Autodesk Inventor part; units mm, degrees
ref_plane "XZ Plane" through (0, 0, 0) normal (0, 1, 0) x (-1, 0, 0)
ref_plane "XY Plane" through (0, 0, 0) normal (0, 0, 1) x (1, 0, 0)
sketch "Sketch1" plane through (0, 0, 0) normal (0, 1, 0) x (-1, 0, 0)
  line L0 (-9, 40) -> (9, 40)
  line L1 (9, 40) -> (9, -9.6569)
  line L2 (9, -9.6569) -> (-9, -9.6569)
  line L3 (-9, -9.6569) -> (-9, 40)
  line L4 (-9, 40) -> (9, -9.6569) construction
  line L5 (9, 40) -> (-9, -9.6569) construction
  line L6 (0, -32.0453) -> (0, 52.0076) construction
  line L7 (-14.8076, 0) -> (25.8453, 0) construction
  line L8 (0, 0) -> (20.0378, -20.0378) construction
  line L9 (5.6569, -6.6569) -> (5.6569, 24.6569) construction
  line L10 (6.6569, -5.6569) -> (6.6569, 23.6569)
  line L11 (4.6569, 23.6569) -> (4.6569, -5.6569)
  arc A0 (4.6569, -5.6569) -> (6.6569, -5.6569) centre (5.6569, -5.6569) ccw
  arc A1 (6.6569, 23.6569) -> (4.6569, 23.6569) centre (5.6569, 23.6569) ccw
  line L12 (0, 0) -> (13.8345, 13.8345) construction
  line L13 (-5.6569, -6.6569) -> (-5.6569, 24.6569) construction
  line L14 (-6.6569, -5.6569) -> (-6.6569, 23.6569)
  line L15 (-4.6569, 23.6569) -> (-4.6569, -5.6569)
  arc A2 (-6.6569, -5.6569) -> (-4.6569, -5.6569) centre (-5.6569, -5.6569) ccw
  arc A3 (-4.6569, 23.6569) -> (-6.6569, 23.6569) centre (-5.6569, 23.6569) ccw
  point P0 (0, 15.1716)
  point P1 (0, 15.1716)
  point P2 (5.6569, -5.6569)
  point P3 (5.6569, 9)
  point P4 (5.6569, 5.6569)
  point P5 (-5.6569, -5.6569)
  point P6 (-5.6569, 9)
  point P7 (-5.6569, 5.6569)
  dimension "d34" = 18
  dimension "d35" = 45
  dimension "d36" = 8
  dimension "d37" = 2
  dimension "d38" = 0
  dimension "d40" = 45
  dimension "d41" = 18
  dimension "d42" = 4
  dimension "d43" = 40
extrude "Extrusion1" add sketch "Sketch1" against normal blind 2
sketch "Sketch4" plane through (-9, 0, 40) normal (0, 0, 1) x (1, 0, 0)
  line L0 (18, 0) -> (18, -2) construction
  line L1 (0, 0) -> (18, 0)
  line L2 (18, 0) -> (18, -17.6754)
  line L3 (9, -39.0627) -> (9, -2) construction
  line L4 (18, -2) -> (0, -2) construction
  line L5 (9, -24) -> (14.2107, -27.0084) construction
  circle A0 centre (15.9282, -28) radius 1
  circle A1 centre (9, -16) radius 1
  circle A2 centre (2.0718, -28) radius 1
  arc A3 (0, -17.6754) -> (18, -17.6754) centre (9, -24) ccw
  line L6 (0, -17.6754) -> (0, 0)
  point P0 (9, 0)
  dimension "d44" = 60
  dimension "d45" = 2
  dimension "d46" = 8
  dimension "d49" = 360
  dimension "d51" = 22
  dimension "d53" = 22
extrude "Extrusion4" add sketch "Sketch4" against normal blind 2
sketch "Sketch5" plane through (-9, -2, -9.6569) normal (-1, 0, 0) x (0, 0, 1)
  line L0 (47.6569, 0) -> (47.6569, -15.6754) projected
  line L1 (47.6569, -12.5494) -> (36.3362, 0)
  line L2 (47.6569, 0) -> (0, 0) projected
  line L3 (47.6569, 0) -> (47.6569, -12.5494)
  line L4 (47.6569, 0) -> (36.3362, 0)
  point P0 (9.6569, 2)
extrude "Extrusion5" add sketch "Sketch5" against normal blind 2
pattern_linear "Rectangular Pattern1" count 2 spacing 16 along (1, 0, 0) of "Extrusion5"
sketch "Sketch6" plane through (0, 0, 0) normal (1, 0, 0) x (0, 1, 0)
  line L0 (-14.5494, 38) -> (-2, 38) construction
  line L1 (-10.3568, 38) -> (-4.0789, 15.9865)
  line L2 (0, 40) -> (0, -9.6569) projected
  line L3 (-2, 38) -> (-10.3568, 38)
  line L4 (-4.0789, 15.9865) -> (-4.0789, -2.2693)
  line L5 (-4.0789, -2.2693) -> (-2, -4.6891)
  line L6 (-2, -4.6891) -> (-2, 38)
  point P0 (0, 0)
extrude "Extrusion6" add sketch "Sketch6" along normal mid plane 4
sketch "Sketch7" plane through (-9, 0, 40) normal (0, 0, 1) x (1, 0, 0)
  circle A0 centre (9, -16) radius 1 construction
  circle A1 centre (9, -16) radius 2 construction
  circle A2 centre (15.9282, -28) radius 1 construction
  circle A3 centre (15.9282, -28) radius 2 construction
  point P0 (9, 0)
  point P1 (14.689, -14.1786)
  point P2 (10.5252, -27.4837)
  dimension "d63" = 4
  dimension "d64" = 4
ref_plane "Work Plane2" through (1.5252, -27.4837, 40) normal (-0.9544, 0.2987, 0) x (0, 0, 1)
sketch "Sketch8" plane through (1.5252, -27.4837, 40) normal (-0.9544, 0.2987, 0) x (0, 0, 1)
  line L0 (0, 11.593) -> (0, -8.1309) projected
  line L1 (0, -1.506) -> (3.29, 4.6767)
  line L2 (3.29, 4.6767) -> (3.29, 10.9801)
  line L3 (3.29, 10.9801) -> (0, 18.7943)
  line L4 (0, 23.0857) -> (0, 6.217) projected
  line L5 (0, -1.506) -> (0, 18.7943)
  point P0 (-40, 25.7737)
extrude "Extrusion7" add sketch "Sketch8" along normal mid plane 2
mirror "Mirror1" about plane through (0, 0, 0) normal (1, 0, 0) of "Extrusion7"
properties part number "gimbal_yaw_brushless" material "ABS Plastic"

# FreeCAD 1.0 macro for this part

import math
import FreeCAD as App
import Part
import Sketcher
Q = App.Units.Quantity


def add_polygon(sketch, points):
    """Adds a closed chain of lines whose ends are joined by coincident constraints."""
    first, n = sketch.GeometryCount, len(points)
    for a, b in zip(points, points[1:] + points[:1]):
        sketch.addGeometry(Part.LineSegment(App.Vector(*a, 0), App.Vector(*b, 0)), False)
    for i in range(n):
        sketch.addConstraint(Sketcher.Constraint("Coincident", first + i, 2, first + (i + 1) % n, 1))

doc = App.newDocument("Part")
body = doc.addObject("PartDesign::Body", "Body")

# Sketch on XZ plane
sketch1 = body.newObject("Sketcher::SketchObject", "Sketch")
sketch1.AttachmentSupport = (doc.getObject("XZ_Plane"), [""])
sketch1.MapMode = "FlatFace"
add_polygon(sketch1, [(-9, 40), (9, 40), (9, -9.7), (-9, -9.7)])  # lines 0-3
sketch1.addGeometry(Part.ArcOfCircle(Part.Circle(App.Vector(5.7, -5.7, 0), App.Vector(0, 0, 1), 1), math.radians(180), math.radians(360)), False)  # 4
sketch1.addGeometry(Part.LineSegment(App.Vector(6.7, -5.7, 0), App.Vector(6.7, 23.7, 0)), False)  # 5
sketch1.addGeometry(Part.ArcOfCircle(Part.Circle(App.Vector(5.7, 23.7, 0), App.Vector(0, 0, 1), 1), math.radians(0), math.radians(180)), False)  # 6
sketch1.addGeometry(Part.LineSegment(App.Vector(4.7, 23.7, 0), App.Vector(4.7, -5.7, 0)), False)  # 7
sketch1.addGeometry(Part.LineSegment(App.Vector(-6.7, 23.7, 0), App.Vector(-6.7, -5.7, 0)), False)  # 8
sketch1.addGeometry(Part.ArcOfCircle(Part.Circle(App.Vector(-5.7, -5.7, 0), App.Vector(0, 0, 1), 1), math.radians(180), math.radians(360)), False)  # 9
sketch1.addGeometry(Part.LineSegment(App.Vector(-4.7, -5.7, 0), App.Vector(-4.7, 23.7, 0)), False)  # 10
sketch1.addGeometry(Part.ArcOfCircle(Part.Circle(App.Vector(-5.7, 23.7, 0), App.Vector(0, 0, 1), 1), math.radians(0), math.radians(180)), False)  # 11
sketch1.addConstraint([
    Sketcher.Constraint("Tangent", 4, 2, 5, 1),
    Sketcher.Constraint("Tangent", 5, 2, 6, 1),
    Sketcher.Constraint("Tangent", 6, 2, 7, 1),
    Sketcher.Constraint("Tangent", 7, 2, 4, 1),
    Sketcher.Constraint("Tangent", 8, 2, 9, 1),
    Sketcher.Constraint("Tangent", 9, 2, 10, 1),
    Sketcher.Constraint("Tangent", 10, 2, 11, 1),
    Sketcher.Constraint("Tangent", 11, 2, 8, 1),
    Sketcher.Constraint("Horizontal", 0),
    Sketcher.Constraint("Vertical", 1),
    Sketcher.Constraint("Horizontal", 2),
    Sketcher.Constraint("Vertical", 3),
    Sketcher.Constraint("Vertical", 5),
    Sketcher.Constraint("Vertical", 7),
    Sketcher.Constraint("Vertical", 8),
    Sketcher.Constraint("Vertical", 10),
    Sketcher.Constraint("Equal", 6, 9),
    Sketcher.Constraint("Symmetric", 4, 3, 9, 3, -2),
    Sketcher.Constraint("Horizontal", 6, 3, 11, 3),
    Sketcher.Constraint("Radius", 4, Q("1 mm")),
    Sketcher.Constraint("DistanceX", 0, 1, 0, 2, Q("18 mm")),
    Sketcher.Constraint("DistanceY", -1, 1, 0, 2, Q("40 mm")),
    Sketcher.Constraint("DistanceY", 1, 2, 4, 3, Q("4 mm")),
    Sketcher.Constraint("DistanceX", -1, 1, 0, 2, Q("9 mm")),
    Sketcher.Constraint("DistanceY", 1, 2, 1, 1, Q("49.657 mm")),
    Sketcher.Constraint("DistanceY", 5, 1, 5, 2, Q("29.3138 mm")),
    Sketcher.Constraint("DistanceX", -1, 1, 4, 3, Q("5.657 mm")),
])
pad1 = body.newObject("PartDesign::Pad", "Pad")
pad1.Profile = sketch1
pad1.Length = 2

# Sketch on XY plane
sketch2 = body.newObject("Sketcher::SketchObject", "Sketch001")
sketch2.AttachmentSupport = (doc.getObject("XY_Plane"), [""])
sketch2.MapMode = "FlatFace"
sketch2.AttachmentOffset = App.Placement(App.Vector(0, 0, 40), App.Rotation())
sketch2.addGeometry([
    Part.LineSegment(App.Vector(9, 0, 0), App.Vector(-9, 0, 0)),  # 0
    Part.LineSegment(App.Vector(-9, 0, 0), App.Vector(-9, -17.7, 0)),  # 1
    Part.ArcOfCircle(Part.Circle(App.Vector(0, -24, 0), App.Vector(0, 0, 1), 11), math.radians(145), math.radians(395)),  # 2
    Part.LineSegment(App.Vector(9, -17.7, 0), App.Vector(9, 0, 0)),  # 3
    Part.Circle(App.Vector(-6.9, -28, 0), App.Vector(0, 0, 1), 1),  # 4
    Part.Circle(App.Vector(6.9, -28, 0), App.Vector(0, 0, 1), 1),  # 5
    Part.Circle(App.Vector(0, -16, 0), App.Vector(0, 0, 1), 1),  # 6
], False)
sketch2.addConstraint([
    Sketcher.Constraint("Coincident", 0, 2, 1, 1),
    Sketcher.Constraint("Coincident", 1, 2, 2, 1),
    Sketcher.Constraint("Coincident", 2, 2, 3, 1),
    Sketcher.Constraint("Coincident", 3, 2, 0, 1),
    Sketcher.Constraint("Horizontal", 0),
    Sketcher.Constraint("Vertical", 1),
    Sketcher.Constraint("Vertical", 3),
    Sketcher.Constraint("Equal", 4, 5),
    Sketcher.Constraint("Equal", 5, 6),
    Sketcher.Constraint("Symmetric", 0, 2, 3, 2, -1, 1),
    Sketcher.Constraint("Symmetric", 4, 3, 5, 3, -2),
    Sketcher.Constraint("PointOnObject", 2, 3, -2),
    Sketcher.Constraint("PointOnObject", 6, 3, -2),
    Sketcher.Constraint("Diameter", 4, Q("2 mm")),
    Sketcher.Constraint("Radius", 2, Q("11 mm")),
    Sketcher.Constraint("DistanceY", 2, 3, 6, 3, Q("8 mm")),
    Sketcher.Constraint("DistanceX", 0, 2, 0, 1, Q("18 mm")),
    Sketcher.Constraint("DistanceY", 2, 3, -1, 1, Q("24 mm")),
    Sketcher.Constraint("DistanceY", 4, 3, -1, 1, Q("28 mm")),
    Sketcher.Constraint("DistanceX", 4, 3, -1, 1, Q("6.9282 mm")),
])
pad2 = body.newObject("PartDesign::Pad", "Pad001")
pad2.Profile = sketch2
pad2.Length = 2
pad2.Reversed = True

# Sketch on YZ plane
sketch3 = body.newObject("Sketcher::SketchObject", "Sketch002")
sketch3.AttachmentSupport = (doc.getObject("YZ_Plane"), [""])
sketch3.MapMode = "FlatFace"
sketch3.AttachmentOffset = App.Placement(App.Vector(0, 0, -9), App.Rotation())
add_polygon(sketch3, [(-15, 38), (-2, 38), (-2, 27)])  # lines 0-2
sketch3.addConstraint([
    Sketcher.Constraint("Horizontal", 0),
    Sketcher.Constraint("Vertical", 1),
    Sketcher.Constraint("DistanceX", 0, 2, -1, 1, Q("2 mm")),
    Sketcher.Constraint("DistanceY", -1, 1, 0, 2, Q("38 mm")),
    Sketcher.Constraint("Distance", 2, Q("16.901 mm")),
    Sketcher.Constraint("DistanceX", 0, 1, 0, 2, Q("12.5494 mm")),
])
pad3 = body.newObject("PartDesign::Pad", "Pad002")
pad3.Profile = sketch3
pad3.Length = 2
doc.recompute()

linearpattern = body.newObject("PartDesign::LinearPattern", "LinearPattern")
linearpattern.Originals = [pad3]
linearpattern.Direction = (doc.getObject("X_Axis"), [""])
linearpattern.Mode = "offset"
linearpattern.Offset = 16
linearpattern.Occurrences = 2
body.Tip = linearpattern

# Sketch on YZ plane
sketch4 = body.newObject("Sketcher::SketchObject", "Sketch003")
sketch4.AttachmentSupport = (doc.getObject("YZ_Plane"), [""])
sketch4.MapMode = "FlatFace"
add_polygon(sketch4, [(-2, 38), (-10.4, 38), (-4.1, 16), (-4.1, -2.3), (-2, -4.7)])  # lines 0-4
sketch4.addConstraint([
    Sketcher.Constraint("Horizontal", 0),
    Sketcher.Constraint("Vertical", 2),
    Sketcher.Constraint("Vertical", 4),
    Sketcher.Constraint("DistanceY", -1, 1, 0, 2, Q("38 mm")),
    Sketcher.Constraint("DistanceX", 3, 2, -1, 1, Q("2 mm")),
    Sketcher.Constraint("DistanceY", 4, 1, 4, 2, Q("42.689 mm")),
    Sketcher.Constraint("DistanceX", 0, 2, 0, 1, Q("8.3568 mm")),
    Sketcher.Constraint("DistanceY", 2, 2, 2, 1, Q("18.2558 mm")),
    Sketcher.Constraint("DistanceX", 1, 2, -1, 1, Q("4.079 mm")),
    Sketcher.Constraint("Distance", 1, Q("22.8912 mm")),
])
pad4 = body.newObject("PartDesign::Pad", "Pad003")
pad4.Profile = sketch4
pad4.Length = 4
pad4.Midplane = True

# Sketch on an angled plane
sketch5 = body.newObject("Sketcher::SketchObject", "Sketch004")
sketch5.Placement = App.Placement(App.Vector(1.5252, -27.4837, 40), App.Rotation(App.Vector(0, 0, 1), App.Vector(0.298684909, 0.954351783, 0), App.Vector(-0.954351783, 0.298684909, 0), "ZXY"))
add_polygon(sketch5, [(0, 19), (0, -2), (3, 5), (3, 11)])  # lines 0-3
sketch5.addConstraint([
    Sketcher.Constraint("Vertical", 0),
    Sketcher.Constraint("Vertical", 2),
    Sketcher.Constraint("PointOnObject", 0, 2, -2),
    Sketcher.Constraint("DistanceX", -1, 1, 1, 2, Q("3.29 mm")),
    Sketcher.Constraint("DistanceY", -1, 1, 2, 2, Q("10.98 mm")),
    Sketcher.Constraint("DistanceY", 0, 2, 0, 1, Q("20.3003 mm")),
    Sketcher.Constraint("DistanceY", 2, 1, 2, 2, Q("6.3034 mm")),
    Sketcher.Constraint("DistanceY", 0, 2, -1, 1, Q("1.506 mm")),
])
pad5 = body.newObject("PartDesign::Pad", "Pad004")
pad5.Profile = sketch5
pad5.Length = 2
pad5.Midplane = True
doc.recompute()

mirrored = body.newObject("PartDesign::Mirrored", "Mirrored")
mirrored.Originals = [pad5]
mirrored.MirrorPlane = (doc.getObject("YZ_Plane"), [""])
body.Tip = mirrored

doc.recompute()
